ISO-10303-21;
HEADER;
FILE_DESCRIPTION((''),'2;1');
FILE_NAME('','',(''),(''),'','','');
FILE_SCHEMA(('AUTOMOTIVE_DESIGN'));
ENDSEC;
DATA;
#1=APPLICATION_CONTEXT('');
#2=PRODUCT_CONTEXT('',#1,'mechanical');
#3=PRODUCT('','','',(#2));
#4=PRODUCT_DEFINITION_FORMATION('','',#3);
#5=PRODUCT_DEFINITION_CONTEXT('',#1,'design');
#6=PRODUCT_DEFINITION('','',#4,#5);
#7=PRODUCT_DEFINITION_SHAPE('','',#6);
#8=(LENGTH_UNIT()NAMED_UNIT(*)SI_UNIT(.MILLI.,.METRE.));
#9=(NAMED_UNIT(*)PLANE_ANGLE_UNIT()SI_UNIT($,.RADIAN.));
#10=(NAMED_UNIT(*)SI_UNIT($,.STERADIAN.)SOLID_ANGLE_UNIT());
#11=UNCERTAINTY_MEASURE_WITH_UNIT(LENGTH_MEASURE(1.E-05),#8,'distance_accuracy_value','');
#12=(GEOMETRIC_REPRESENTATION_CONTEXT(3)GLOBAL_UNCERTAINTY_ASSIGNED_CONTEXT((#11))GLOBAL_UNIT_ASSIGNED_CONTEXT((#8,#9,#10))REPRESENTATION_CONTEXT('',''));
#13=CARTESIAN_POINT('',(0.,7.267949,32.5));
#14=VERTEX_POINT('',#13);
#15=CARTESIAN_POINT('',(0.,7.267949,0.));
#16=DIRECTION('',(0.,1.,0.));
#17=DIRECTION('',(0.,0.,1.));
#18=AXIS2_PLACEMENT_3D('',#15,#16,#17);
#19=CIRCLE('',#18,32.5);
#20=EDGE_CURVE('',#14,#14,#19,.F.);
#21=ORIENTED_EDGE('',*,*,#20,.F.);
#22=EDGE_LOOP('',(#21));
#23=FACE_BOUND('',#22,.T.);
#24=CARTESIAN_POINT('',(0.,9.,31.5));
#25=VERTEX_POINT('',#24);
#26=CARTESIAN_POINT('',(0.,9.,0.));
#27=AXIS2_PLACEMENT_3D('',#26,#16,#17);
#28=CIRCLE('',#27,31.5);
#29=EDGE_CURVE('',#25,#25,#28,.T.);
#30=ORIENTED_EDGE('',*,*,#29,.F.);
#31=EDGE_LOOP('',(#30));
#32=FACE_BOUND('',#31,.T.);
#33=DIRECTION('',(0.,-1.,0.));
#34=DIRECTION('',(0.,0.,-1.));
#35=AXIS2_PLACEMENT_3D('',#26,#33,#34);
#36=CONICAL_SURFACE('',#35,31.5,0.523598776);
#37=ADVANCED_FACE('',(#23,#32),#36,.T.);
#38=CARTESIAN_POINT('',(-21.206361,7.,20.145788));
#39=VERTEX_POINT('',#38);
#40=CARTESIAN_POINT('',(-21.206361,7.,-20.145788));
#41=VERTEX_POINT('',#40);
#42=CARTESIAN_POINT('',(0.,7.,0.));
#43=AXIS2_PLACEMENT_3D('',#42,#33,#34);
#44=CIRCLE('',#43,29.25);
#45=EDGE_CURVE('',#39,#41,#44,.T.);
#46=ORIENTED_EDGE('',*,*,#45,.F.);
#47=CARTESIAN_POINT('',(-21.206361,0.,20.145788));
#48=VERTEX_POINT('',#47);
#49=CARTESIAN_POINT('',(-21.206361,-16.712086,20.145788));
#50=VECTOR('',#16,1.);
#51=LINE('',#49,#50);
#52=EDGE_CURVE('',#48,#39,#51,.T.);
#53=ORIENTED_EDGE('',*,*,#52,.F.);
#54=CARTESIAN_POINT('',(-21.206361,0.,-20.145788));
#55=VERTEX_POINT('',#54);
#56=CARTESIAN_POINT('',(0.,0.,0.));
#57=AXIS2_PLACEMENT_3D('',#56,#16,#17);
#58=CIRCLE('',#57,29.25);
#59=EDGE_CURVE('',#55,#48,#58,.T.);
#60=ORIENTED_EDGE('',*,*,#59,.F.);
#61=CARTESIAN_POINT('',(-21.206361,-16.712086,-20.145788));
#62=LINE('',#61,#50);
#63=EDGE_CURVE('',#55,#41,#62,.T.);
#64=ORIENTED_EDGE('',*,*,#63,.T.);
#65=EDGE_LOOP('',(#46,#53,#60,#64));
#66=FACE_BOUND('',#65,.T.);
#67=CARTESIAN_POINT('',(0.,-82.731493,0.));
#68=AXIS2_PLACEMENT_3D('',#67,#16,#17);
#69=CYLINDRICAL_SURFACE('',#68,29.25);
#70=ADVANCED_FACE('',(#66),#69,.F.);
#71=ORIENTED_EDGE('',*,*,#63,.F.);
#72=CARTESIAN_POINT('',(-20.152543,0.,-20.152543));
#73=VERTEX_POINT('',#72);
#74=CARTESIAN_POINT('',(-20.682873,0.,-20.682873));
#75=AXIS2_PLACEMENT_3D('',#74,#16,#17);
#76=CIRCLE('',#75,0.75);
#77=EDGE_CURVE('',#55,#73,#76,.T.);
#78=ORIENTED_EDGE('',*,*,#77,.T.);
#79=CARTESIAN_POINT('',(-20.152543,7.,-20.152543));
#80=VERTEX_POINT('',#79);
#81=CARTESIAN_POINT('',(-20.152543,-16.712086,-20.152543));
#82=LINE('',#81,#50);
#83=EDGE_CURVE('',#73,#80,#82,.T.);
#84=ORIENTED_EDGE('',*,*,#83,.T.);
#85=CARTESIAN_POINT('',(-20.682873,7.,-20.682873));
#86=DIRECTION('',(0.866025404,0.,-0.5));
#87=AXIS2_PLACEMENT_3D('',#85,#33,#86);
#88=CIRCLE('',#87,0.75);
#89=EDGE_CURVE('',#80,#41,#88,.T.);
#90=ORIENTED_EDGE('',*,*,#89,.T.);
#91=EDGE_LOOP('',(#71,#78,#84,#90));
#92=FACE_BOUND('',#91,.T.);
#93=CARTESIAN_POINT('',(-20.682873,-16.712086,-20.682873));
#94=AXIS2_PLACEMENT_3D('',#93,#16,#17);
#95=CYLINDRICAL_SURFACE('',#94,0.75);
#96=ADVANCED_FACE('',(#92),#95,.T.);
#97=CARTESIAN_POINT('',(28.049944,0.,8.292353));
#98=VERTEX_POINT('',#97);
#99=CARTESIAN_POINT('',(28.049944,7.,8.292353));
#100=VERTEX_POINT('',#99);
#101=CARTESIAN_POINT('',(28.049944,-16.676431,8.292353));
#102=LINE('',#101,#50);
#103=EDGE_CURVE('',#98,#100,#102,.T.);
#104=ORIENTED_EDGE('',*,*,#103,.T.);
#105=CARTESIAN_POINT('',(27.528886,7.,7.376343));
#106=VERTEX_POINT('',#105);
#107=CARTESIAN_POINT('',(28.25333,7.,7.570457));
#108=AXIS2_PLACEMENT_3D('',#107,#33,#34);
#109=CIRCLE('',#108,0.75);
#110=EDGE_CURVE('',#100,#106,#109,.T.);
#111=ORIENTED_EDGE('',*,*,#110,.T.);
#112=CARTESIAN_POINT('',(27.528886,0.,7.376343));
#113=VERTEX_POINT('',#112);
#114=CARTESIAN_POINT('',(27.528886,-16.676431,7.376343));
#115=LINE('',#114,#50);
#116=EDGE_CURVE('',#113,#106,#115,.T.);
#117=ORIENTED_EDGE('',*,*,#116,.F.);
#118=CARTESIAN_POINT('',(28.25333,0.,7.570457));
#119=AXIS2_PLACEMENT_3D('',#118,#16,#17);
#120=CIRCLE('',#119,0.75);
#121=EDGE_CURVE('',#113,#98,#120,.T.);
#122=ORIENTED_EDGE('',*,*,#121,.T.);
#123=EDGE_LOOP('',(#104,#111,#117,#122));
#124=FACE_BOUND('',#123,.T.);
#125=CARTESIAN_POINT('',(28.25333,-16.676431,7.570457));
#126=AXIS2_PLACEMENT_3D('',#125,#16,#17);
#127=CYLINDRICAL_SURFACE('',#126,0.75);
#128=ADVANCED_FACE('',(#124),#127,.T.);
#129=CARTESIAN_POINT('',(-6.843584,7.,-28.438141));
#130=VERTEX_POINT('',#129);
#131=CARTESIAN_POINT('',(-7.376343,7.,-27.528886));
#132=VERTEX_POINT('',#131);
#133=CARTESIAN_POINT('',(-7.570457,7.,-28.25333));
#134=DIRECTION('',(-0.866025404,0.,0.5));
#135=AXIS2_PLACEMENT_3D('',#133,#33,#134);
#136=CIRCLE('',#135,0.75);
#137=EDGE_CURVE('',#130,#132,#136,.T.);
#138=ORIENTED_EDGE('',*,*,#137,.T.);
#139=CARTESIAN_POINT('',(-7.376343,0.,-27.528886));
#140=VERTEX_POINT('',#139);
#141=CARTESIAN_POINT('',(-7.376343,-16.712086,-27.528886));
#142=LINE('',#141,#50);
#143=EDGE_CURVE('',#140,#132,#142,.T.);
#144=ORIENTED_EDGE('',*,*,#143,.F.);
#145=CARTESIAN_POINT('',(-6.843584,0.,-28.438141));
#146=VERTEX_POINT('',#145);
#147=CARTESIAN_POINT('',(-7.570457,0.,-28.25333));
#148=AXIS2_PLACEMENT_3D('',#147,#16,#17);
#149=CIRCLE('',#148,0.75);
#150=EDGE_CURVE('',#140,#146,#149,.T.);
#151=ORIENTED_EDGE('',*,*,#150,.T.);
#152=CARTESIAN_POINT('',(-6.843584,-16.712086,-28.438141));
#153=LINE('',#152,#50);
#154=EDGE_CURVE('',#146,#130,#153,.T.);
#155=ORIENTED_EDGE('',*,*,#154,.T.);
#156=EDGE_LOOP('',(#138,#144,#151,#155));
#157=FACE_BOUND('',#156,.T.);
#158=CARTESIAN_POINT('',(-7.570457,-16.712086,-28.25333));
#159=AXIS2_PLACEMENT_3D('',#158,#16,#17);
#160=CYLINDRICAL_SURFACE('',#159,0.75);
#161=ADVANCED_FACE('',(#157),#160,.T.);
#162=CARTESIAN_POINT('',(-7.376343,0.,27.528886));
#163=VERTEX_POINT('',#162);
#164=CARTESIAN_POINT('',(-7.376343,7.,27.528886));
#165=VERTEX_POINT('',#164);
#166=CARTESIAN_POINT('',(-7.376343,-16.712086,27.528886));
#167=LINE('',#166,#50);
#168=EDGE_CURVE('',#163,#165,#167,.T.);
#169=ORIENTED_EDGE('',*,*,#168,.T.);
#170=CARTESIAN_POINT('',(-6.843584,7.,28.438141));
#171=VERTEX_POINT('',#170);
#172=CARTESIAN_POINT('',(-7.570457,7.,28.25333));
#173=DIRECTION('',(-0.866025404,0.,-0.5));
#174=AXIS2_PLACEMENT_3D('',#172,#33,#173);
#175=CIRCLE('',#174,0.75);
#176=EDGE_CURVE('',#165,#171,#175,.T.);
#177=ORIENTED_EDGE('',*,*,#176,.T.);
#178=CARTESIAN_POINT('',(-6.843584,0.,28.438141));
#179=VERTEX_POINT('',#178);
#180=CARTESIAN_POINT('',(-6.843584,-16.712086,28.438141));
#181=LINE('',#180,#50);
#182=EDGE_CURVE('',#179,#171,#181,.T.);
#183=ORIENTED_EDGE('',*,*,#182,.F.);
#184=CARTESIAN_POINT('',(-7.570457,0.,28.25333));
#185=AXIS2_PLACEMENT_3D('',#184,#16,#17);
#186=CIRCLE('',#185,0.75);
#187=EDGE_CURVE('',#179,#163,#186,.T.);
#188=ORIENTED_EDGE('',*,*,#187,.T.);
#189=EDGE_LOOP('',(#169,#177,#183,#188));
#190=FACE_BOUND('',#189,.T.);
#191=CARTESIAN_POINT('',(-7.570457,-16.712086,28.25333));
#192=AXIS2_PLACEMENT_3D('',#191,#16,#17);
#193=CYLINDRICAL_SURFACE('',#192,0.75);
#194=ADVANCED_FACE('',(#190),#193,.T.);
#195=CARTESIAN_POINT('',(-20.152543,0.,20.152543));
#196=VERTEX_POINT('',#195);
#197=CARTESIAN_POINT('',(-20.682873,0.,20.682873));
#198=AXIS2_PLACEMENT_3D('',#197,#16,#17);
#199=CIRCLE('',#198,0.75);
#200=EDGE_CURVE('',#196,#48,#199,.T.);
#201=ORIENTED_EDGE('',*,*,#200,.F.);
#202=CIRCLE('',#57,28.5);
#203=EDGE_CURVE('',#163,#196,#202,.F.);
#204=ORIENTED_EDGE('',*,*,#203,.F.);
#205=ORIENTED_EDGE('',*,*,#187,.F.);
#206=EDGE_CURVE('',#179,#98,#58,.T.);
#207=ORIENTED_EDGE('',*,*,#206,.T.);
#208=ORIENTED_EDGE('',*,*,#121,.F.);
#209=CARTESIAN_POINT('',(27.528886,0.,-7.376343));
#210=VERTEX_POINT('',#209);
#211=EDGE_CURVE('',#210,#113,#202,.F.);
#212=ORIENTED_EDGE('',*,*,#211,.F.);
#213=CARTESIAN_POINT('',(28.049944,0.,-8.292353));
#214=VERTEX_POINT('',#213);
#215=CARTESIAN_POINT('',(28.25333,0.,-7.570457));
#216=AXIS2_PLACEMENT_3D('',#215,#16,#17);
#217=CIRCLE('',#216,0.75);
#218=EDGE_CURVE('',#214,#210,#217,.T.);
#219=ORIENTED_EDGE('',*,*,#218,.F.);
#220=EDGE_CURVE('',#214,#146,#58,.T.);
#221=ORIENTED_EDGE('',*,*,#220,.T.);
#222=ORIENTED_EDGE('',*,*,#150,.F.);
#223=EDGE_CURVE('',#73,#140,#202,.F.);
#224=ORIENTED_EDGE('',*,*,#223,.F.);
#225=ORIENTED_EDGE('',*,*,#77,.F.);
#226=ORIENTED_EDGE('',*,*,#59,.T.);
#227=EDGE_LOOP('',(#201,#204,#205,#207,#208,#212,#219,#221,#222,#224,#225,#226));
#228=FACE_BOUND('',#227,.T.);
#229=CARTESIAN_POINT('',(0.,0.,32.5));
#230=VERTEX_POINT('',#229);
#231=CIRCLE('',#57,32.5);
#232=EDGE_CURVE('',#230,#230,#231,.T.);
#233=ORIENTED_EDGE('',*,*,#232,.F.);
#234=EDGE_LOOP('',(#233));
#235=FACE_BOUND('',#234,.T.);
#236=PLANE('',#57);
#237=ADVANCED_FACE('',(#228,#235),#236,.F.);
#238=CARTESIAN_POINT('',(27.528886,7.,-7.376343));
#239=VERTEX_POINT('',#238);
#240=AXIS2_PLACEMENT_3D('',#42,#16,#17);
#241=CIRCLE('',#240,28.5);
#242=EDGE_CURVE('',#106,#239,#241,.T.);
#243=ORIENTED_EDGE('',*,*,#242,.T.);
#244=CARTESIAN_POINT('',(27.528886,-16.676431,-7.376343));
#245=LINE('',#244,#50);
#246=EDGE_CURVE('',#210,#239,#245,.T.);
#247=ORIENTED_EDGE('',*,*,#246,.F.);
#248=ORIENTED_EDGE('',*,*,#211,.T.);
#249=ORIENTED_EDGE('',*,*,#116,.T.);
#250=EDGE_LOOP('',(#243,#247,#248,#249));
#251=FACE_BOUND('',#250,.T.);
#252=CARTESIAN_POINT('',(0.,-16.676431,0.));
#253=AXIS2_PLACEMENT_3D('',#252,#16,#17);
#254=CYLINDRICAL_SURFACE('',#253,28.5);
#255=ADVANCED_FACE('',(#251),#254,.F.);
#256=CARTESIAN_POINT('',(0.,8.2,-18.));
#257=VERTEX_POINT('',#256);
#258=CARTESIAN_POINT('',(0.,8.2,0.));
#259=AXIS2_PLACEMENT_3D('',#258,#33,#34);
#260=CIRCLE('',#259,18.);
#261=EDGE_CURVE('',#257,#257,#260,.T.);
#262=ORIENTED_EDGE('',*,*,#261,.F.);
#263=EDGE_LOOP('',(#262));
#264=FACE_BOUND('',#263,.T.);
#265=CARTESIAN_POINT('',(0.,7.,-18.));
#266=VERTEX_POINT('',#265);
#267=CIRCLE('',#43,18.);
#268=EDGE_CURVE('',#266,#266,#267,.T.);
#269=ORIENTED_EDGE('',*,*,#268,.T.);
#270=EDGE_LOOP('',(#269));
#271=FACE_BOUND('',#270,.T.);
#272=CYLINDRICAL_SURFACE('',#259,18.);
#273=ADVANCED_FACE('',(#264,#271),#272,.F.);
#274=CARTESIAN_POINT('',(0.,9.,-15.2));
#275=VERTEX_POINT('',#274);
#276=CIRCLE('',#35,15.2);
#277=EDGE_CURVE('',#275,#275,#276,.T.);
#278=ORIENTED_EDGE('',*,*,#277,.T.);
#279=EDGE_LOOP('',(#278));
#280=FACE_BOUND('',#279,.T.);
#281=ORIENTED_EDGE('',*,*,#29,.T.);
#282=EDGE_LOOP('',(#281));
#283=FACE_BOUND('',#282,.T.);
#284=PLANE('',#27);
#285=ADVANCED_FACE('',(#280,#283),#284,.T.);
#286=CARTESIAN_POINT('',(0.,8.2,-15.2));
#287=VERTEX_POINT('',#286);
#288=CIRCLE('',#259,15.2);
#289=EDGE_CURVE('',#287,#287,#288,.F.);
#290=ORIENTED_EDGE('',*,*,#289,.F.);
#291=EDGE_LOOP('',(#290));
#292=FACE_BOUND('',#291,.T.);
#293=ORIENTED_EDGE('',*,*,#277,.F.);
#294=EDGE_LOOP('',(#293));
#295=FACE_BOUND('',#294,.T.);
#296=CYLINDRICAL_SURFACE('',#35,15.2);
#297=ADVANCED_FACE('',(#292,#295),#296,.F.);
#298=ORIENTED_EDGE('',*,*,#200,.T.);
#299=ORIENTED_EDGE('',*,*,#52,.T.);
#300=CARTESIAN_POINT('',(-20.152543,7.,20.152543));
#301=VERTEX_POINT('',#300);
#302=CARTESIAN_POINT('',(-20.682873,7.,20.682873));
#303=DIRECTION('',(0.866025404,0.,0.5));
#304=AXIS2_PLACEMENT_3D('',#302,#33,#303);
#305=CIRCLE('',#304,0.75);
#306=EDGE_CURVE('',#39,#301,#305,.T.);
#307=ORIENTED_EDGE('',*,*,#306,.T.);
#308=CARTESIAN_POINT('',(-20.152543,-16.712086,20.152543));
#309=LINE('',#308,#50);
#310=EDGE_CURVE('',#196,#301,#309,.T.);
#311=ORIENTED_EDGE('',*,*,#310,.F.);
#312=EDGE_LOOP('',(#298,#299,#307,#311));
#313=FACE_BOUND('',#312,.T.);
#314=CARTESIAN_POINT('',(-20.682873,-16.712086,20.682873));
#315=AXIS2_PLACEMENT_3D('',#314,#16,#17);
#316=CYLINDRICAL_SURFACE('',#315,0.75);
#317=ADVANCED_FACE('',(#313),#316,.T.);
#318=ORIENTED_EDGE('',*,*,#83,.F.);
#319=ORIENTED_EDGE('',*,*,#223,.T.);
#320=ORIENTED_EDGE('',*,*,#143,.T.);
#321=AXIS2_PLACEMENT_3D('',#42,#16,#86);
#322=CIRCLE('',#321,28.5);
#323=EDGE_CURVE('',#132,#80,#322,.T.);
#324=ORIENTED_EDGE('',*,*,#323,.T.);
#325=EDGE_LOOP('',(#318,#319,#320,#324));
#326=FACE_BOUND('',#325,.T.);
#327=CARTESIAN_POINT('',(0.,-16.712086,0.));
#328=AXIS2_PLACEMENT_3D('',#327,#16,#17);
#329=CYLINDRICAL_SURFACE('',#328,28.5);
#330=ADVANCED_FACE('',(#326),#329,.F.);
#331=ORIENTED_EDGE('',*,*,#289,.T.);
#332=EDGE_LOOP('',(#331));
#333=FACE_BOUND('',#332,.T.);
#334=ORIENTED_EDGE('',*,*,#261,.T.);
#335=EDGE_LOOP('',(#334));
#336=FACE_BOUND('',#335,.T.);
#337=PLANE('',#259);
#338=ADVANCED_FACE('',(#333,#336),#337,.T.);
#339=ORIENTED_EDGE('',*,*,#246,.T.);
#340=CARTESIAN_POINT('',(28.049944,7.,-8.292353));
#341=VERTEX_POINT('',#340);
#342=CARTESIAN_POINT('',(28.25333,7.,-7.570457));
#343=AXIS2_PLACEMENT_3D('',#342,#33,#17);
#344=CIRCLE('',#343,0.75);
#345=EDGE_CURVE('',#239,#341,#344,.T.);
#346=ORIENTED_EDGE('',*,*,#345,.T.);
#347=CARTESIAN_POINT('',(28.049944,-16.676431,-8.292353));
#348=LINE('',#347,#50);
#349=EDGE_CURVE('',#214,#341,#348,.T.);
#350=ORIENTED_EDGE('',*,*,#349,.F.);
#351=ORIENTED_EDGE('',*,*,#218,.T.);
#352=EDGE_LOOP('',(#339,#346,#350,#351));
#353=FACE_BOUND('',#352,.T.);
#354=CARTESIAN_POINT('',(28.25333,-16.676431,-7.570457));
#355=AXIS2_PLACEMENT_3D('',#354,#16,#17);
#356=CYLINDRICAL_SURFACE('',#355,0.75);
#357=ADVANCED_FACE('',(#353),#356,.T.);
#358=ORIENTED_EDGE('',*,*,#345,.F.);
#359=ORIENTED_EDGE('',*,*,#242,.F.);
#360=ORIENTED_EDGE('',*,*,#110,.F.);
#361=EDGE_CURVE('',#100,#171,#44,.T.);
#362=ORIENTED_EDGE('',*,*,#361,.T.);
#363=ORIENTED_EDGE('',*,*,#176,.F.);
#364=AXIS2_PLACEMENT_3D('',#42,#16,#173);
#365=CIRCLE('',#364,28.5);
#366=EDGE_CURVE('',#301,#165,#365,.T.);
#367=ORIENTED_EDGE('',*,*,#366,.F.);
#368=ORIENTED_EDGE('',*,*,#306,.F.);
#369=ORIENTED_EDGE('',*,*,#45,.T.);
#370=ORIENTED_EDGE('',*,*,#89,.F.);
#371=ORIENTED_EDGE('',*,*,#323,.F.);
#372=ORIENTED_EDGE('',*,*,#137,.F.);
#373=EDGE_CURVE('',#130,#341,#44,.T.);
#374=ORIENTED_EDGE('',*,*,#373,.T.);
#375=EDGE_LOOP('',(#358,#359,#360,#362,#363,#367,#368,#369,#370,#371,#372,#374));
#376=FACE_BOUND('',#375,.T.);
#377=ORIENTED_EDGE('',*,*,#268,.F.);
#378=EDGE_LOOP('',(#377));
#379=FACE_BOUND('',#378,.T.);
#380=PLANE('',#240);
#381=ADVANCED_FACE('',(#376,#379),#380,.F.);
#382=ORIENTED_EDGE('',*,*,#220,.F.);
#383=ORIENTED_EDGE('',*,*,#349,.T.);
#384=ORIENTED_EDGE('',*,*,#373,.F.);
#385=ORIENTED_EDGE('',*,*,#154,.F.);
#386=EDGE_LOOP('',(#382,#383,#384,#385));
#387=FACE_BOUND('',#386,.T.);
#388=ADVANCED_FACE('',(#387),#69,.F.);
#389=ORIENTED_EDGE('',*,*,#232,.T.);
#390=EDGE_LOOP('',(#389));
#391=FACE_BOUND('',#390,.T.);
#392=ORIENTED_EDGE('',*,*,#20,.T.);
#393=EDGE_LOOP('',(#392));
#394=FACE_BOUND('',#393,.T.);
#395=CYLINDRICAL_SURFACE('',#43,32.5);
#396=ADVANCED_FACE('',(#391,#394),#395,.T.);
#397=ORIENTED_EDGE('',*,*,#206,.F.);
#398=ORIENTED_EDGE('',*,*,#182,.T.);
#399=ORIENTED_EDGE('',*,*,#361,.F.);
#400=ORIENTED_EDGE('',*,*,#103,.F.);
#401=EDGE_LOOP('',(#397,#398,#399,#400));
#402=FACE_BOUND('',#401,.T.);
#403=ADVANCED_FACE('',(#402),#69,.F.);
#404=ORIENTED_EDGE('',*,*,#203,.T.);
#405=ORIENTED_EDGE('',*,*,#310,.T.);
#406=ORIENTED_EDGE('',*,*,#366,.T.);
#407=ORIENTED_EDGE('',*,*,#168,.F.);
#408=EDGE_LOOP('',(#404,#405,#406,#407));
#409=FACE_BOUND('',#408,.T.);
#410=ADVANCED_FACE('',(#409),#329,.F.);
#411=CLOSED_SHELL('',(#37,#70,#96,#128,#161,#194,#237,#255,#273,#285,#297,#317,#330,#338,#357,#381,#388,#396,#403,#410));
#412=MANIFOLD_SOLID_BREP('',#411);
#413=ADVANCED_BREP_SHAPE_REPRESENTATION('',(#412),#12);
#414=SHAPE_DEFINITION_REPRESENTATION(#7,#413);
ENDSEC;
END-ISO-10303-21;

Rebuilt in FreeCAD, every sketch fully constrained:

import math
import FreeCAD as App
import Part
import Sketcher
from FreeCAD import Vector
Q = App.Units.Quantity


def edges_at(feature, points):
    """Names of the edges that pass closest to the given points."""
    edges = feature.Shape.Edges
    near = lambda p: min(range(len(edges)), key=lambda i: edges[i].distToShape(Part.Vertex(*p))[0])
    return sorted({f"Edge{near(p) + 1}" for p in points})

doc = App.newDocument("Part")
body = doc.addObject("PartDesign::Body", "Body")

sketch1 = doc.addObject("Sketcher::SketchObject", "Sketch")
body.addObject(sketch1)
sketch1.AttachmentSupport = (doc.XZ_Plane, [""])
sketch1.MapMode = "FlatFace"
sketch1.addGeometry(Part.Circle(Vector(0, 0, 0), Vector(0, 0, 1), 32), False)
sketch1.addGeometry(Part.Circle(Vector(0, 0, 0), Vector(0, 0, 1), 28), False)
sketch1.addConstraint(Sketcher.Constraint("Coincident", 0, 3, -1, 1))
sketch1.addConstraint(Sketcher.Constraint("Coincident", 1, 3, -1, 1))
sketch1.addConstraint(Sketcher.Constraint("Diameter", 0, Q("65 mm")))
sketch1.addConstraint(Sketcher.Constraint("Diameter", 1, Q("57 mm")))
pad1 = doc.addObject("PartDesign::Pad", "Pad")
body.addObject(pad1)
pad1.Profile = sketch1
pad1.Length = 7
pad1.Reversed = True

sketch2 = doc.addObject("Sketcher::SketchObject", "Sketch001")
body.addObject(sketch2)
sketch2.AttachmentSupport = (doc.XZ_Plane, [""])
sketch2.MapMode = "FlatFace"
sketch2.AttachmentOffset = App.Placement(Vector(0, 0, -7), App.Rotation())
sketch2.addGeometry(Part.Circle(Vector(0, 0, 0), Vector(0, 0, 1), 32), False)
sketch2.addConstraint(Sketcher.Constraint("Coincident", 0, 3, -1, 1))
sketch2.addConstraint(Sketcher.Constraint("Diameter", 0, Q("65 mm")))
pad2 = doc.addObject("PartDesign::Pad", "Pad001")
body.addObject(pad2)
pad2.Profile = sketch2
pad2.Length = 2
pad2.Reversed = True

sketch3 = doc.addObject("Sketcher::SketchObject", "Sketch002")
body.addObject(sketch3)
sketch3.AttachmentSupport = (doc.XZ_Plane, [""])
sketch3.MapMode = "FlatFace"
sketch3.AttachmentOffset = App.Placement(Vector(0, 0, -7), App.Rotation())
sketch3.addGeometry(Part.Circle(Vector(0, 0, 0), Vector(0, 0, 1), 29), False)
sketch3.addConstraint(Sketcher.Constraint("Coincident", 0, 3, -1, 1))
sketch3.addConstraint(Sketcher.Constraint("Diameter", 0, Q("58.5 mm")))
pocket1 = doc.addObject("PartDesign::Pocket", "Pocket")
body.addObject(pocket1)
pocket1.Profile = sketch3
pocket1.Length = 7
pocket1.Reversed = True

sketch4 = doc.addObject("Sketcher::SketchObject", "Sketch003")
body.addObject(sketch4)
sketch4.AttachmentSupport = (doc.XZ_Plane, [""])
sketch4.MapMode = "FlatFace"
sketch4.AttachmentOffset = App.Placement(Vector(0, 0, -7), App.Rotation())
sketch4.addGeometry(Part.ArcOfCircle(Part.Circle(Vector(28.3, -7.6, 0), Vector(0, 0, 1), 0.8), math.radians(165), math.radians(254)), False)
sketch4.addGeometry(Part.ArcOfCircle(Part.Circle(Vector(0, 0, 0), Vector(0, 0, 1), 29.2), math.radians(-16), math.radians(16)), False)
sketch4.addGeometry(Part.ArcOfCircle(Part.Circle(Vector(28.3, 7.6, 0), Vector(0, 0, 1), 0.8), math.radians(106), math.radians(195)), False)
sketch4.addGeometry(Part.ArcOfCircle(Part.Circle(Vector(0, 0, 0), Vector(0, 0, 1), 28.5), math.radians(-15), math.radians(15)), False)
sketch4.addConstraint(Sketcher.Constraint("Coincident", 0, 2, 1, 1))
sketch4.addConstraint(Sketcher.Constraint("Coincident", 1, 2, 2, 1))
sketch4.addConstraint(Sketcher.Constraint("Tangent", 2, 2, 3, 2))
sketch4.addConstraint(Sketcher.Constraint("Tangent", 3, 1, 0, 1))
sketch4.addConstraint(Sketcher.Constraint("Coincident", 1, 3, -1, 1))
sketch4.addConstraint(Sketcher.Constraint("Coincident", 3, 3, -1, 1))
sketch4.addConstraint(Sketcher.Constraint("Equal", 0, 2))
sketch4.addConstraint(Sketcher.Constraint("Vertical", 0, 3, 2, 3))
sketch4.addConstraint(Sketcher.Constraint("Radius", 3, Q("28.5 mm")))
sketch4.addConstraint(Sketcher.Constraint("Radius", 0, Q("0.75 mm")))
sketch4.addConstraint(Sketcher.Constraint("Radius", 1, Q("29.25 mm")))
sketch4.addConstraint(Sketcher.Constraint("DistanceY", 0, 3, 2, 2, Q("14.9468 mm")))
pad3 = doc.addObject("PartDesign::Pad", "Pad002")
body.addObject(pad3)
pad3.Profile = sketch4
pad3.Length = 7
doc.recompute()

polarpattern = doc.addObject("PartDesign::PolarPattern", "PolarPattern")
body.addObject(polarpattern)
polarpattern.Originals = [pad3]
polarpattern.Axis = (doc.Y_Axis, [""])
polarpattern.Angle = 360
polarpattern.Occurrences = 3
body.Tip = polarpattern
doc.recompute()

chamfer = doc.addObject("PartDesign::Chamfer", "Chamfer")
body.addObject(chamfer)
chamfer.Base = (polarpattern, edges_at(polarpattern, [(0, 9, -32.5)]))
chamfer.ChamferType = "Two distances"
chamfer.Size = 1
chamfer.Size2 = 1.732051
chamfer.FlipDirection = True

sketch5 = doc.addObject("Sketcher::SketchObject", "Sketch004")
body.addObject(sketch5)
sketch5.AttachmentSupport = (doc.XZ_Plane, [""])
sketch5.MapMode = "FlatFace"
sketch5.AttachmentOffset = App.Placement(Vector(0, 0, -7), App.Rotation())
sketch5.addGeometry(Part.Circle(Vector(0, 0, 0), Vector(0, 0, 1), 15), False)
sketch5.addConstraint(Sketcher.Constraint("Coincident", 0, 3, -1, 1))
sketch5.addConstraint(Sketcher.Constraint("Diameter", 0, Q("30.4 mm")))
pocket2 = doc.addObject("PartDesign::Pocket", "Pocket001")
body.addObject(pocket2)
pocket2.Profile = sketch5
pocket2.Type = "ThroughAll"

sketch6 = doc.addObject("Sketcher::SketchObject", "Sketch005")
body.addObject(sketch6)
sketch6.AttachmentSupport = (doc.XZ_Plane, [""])
sketch6.MapMode = "FlatFace"
sketch6.AttachmentOffset = App.Placement(Vector(0, 0, -7), App.Rotation())
sketch6.addGeometry(Part.Circle(Vector(0, 0, 0), Vector(0, 0, 1), 18), False)
sketch6.addConstraint(Sketcher.Constraint("Coincident", 0, 3, -1, 1))
sketch6.addConstraint(Sketcher.Constraint("Diameter", 0, Q("36 mm")))
pocket3 = doc.addObject("PartDesign::Pocket", "Pocket002")
body.addObject(pocket3)
pocket3.Profile = sketch6
pocket3.Length = 1.2

doc.recompute()
